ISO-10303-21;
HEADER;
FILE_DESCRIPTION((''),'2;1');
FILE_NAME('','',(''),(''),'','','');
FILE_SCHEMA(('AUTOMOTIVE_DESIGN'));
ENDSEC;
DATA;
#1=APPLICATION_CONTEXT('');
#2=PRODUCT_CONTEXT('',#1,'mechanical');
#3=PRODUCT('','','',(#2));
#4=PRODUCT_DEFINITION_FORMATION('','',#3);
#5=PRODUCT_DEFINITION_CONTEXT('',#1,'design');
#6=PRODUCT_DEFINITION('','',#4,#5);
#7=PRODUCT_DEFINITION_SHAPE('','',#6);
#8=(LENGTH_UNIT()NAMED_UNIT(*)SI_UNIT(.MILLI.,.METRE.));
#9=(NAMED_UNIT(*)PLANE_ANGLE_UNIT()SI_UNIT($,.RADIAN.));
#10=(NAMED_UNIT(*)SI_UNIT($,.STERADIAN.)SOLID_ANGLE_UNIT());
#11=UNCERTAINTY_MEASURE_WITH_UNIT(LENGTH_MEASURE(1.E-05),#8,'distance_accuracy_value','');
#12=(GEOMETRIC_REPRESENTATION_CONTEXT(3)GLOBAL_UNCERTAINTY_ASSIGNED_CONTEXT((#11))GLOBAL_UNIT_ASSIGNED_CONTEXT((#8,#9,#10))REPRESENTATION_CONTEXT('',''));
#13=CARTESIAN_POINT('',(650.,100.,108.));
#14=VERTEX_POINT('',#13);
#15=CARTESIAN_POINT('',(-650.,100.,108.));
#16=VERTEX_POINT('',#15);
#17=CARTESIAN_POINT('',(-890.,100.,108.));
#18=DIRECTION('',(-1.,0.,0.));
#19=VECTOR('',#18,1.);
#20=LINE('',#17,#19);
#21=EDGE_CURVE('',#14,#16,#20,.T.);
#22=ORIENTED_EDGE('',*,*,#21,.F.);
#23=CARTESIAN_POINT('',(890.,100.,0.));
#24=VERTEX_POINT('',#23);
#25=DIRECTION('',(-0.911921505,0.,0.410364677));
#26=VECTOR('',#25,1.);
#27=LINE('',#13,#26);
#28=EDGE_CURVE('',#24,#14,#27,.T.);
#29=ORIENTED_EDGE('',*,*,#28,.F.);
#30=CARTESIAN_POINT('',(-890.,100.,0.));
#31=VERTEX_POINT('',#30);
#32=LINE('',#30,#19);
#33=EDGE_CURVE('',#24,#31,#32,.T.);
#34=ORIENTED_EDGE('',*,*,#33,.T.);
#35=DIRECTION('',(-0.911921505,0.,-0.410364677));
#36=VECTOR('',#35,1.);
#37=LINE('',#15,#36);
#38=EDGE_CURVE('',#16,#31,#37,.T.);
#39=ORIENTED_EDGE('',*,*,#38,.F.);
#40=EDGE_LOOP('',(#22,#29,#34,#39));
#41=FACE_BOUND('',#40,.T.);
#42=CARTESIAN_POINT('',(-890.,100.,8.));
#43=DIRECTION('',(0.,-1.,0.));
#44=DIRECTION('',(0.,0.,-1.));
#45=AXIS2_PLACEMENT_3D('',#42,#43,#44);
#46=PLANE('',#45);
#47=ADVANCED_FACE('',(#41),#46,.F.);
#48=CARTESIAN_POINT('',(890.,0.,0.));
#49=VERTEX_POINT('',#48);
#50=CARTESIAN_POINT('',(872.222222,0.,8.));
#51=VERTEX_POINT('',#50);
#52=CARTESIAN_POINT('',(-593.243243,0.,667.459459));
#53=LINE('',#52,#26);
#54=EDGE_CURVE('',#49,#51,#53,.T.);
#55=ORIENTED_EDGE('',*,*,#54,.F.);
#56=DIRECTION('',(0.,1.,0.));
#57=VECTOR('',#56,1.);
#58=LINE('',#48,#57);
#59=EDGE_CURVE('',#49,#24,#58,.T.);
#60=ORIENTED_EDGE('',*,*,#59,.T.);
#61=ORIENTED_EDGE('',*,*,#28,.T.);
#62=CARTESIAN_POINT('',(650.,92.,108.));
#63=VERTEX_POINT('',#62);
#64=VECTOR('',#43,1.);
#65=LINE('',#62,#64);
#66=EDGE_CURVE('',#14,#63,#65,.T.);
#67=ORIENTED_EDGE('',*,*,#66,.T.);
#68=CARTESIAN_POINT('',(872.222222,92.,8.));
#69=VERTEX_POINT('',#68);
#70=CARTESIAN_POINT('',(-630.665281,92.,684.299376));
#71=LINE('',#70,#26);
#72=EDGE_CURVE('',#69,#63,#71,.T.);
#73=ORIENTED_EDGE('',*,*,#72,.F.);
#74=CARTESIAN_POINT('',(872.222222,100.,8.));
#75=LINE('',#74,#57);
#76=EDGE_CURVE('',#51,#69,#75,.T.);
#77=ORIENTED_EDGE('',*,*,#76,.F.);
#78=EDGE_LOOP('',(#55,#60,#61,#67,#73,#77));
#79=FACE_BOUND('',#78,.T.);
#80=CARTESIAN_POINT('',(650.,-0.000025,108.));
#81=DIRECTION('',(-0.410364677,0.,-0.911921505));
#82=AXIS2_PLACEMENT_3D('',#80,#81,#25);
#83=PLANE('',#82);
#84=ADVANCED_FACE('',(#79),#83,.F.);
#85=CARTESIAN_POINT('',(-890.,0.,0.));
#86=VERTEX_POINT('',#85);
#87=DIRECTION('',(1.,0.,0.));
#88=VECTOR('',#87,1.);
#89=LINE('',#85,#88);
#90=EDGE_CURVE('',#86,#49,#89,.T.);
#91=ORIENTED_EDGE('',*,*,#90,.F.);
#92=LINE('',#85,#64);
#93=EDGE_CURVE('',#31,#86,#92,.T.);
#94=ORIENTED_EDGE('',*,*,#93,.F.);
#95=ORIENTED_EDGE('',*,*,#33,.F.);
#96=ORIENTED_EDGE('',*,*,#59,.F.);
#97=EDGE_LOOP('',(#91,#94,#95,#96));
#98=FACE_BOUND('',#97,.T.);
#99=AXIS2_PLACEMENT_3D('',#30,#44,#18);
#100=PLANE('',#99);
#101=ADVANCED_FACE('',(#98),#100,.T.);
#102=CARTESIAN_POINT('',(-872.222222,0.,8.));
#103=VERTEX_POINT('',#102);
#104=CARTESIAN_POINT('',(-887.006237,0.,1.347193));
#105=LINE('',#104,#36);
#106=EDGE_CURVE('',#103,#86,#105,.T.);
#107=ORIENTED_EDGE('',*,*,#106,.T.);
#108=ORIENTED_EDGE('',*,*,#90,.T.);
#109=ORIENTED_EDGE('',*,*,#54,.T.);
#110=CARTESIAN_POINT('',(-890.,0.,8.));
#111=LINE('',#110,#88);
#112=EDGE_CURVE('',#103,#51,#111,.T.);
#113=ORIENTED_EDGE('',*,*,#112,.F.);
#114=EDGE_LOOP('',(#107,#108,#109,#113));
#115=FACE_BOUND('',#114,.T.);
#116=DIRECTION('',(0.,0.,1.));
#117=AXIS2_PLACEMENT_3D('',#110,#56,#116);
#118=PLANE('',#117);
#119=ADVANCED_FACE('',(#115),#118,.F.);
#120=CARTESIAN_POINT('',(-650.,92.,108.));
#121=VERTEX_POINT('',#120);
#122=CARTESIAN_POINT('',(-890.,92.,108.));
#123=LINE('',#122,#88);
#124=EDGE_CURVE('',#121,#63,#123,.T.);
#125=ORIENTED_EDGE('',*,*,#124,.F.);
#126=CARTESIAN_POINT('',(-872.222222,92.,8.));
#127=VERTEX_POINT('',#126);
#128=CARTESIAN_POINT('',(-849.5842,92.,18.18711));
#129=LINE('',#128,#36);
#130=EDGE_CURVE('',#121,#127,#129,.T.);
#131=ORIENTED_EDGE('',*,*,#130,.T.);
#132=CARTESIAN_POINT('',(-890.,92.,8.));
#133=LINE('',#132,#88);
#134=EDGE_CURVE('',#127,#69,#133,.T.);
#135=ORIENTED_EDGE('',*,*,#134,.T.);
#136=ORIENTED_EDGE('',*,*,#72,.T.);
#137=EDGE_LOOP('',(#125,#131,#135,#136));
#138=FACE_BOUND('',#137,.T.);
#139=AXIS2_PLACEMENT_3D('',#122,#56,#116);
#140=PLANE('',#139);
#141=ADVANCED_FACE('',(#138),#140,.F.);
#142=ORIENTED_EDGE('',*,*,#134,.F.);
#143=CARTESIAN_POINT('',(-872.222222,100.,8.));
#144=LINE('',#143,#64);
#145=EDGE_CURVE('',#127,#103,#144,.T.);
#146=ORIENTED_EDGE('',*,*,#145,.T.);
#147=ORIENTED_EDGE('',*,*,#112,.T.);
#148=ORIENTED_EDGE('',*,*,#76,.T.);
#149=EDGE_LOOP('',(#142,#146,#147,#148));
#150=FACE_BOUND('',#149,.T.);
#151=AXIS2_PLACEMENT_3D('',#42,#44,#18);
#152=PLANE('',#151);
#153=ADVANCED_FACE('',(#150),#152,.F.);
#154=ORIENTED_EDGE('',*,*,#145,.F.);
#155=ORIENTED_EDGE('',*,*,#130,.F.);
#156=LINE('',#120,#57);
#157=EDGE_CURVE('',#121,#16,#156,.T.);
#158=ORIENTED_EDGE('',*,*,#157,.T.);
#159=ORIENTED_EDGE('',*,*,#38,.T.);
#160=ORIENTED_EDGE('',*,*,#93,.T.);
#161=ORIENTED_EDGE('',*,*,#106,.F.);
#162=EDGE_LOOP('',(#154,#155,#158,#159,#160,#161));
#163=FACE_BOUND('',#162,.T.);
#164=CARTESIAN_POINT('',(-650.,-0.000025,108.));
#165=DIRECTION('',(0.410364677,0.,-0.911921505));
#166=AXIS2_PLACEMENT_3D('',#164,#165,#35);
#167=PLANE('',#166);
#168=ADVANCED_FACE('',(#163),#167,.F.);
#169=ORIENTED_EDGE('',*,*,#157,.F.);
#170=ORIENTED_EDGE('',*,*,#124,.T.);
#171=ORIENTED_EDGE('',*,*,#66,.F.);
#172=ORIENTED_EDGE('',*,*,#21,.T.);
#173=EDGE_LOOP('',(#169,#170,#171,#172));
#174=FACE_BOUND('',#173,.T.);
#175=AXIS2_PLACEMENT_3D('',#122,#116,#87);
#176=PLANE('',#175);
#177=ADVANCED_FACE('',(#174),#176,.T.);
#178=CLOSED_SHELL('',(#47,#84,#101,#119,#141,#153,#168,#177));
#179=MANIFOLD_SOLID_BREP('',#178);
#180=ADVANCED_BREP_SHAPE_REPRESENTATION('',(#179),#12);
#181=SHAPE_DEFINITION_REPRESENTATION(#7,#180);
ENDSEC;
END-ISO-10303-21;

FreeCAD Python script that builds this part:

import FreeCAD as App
import Part
import Sketcher
from FreeCAD import Vector
Q = App.Units.Quantity


def add_polygon(sketch, points):
    """Adds a closed chain of lines whose ends are joined by coincident constraints."""
    first, n = sketch.GeometryCount, len(points)
    for a, b in zip(points, points[1:] + points[:1]):
        sketch.addGeometry(Part.LineSegment(App.Vector(*a, 0), App.Vector(*b, 0)), False)
    for i in range(n):
        sketch.addConstraint(Sketcher.Constraint("Coincident", first + i, 2, first + (i + 1) % n, 1))

doc = App.newDocument("Part")
body = doc.addObject("PartDesign::Body", "Body")

# Sketch on XY plane
sketch1 = body.newObject("Sketcher::SketchObject", "Sketch")
sketch1.AttachmentSupport = (doc.getObject("XY_Plane"), [""])
sketch1.MapMode = "FlatFace"
add_polygon(sketch1, [(-890, 100), (-890, 0), (890, 0), (890, 100)])  # lines 0-3
sketch1.addConstraint([
    Sketcher.Constraint("Vertical", 0),
    Sketcher.Constraint("Horizontal", 1),
    Sketcher.Constraint("Vertical", 2),
    Sketcher.Constraint("Horizontal", 3),
    Sketcher.Constraint("Symmetric", 0, 2, 1, 2, -1, 1),
    Sketcher.Constraint("DistanceX", 1, 1, 1, 2, Q("1780 mm")),
    Sketcher.Constraint("DistanceY", 0, 2, 0, 1, Q("100 mm")),
])
pad1 = body.newObject("PartDesign::Pad", "Pad")
pad1.Profile = sketch1
pad1.Length = 8

# Sketch on XY plane
sketch2 = body.newObject("Sketcher::SketchObject", "Sketch001")
sketch2.AttachmentSupport = (doc.getObject("XY_Plane"), [""])
sketch2.MapMode = "FlatFace"
sketch2.AttachmentOffset = App.Placement(Vector(0, 0, 8), App.Rotation())
add_polygon(sketch2, [(-890, 100), (-890, 92), (890, 92), (890, 100)])  # lines 0-3
sketch2.addConstraint([
    Sketcher.Constraint("Vertical", 0),
    Sketcher.Constraint("Horizontal", 1),
    Sketcher.Constraint("Vertical", 2),
    Sketcher.Constraint("Horizontal", 3),
    Sketcher.Constraint("DistanceX", 1, 1, 1, 2, Q("1780 mm")),
    Sketcher.Constraint("DistanceY", 0, 2, 0, 1, Q("8 mm")),
    Sketcher.Constraint("DistanceX", 0, 2, -1, 1, Q("890 mm")),
    Sketcher.Constraint("DistanceY", -1, 1, 0, 2, Q("92 mm")),
])
pad2 = body.newObject("PartDesign::Pad", "Pad001")
pad2.Profile = sketch2
pad2.Length = 100

# Sketch on XZ plane
sketch3 = body.newObject("Sketcher::SketchObject", "Sketch002")
sketch3.AttachmentSupport = (doc.getObject("XZ_Plane"), [""])
sketch3.MapMode = "FlatFace"
sketch3.AttachmentOffset = App.Placement(Vector(0, 0, -100), App.Rotation())
add_polygon(sketch3, [(890, 0), (650, 108), (890, 108)])  # lines 0-2
add_polygon(sketch3, [(-890, 108), (-650, 108), (-890, 0)])  # lines 3-5
sketch3.addConstraint([
    Sketcher.Constraint("Horizontal", 1),
    Sketcher.Constraint("Vertical", 2),
    Sketcher.Constraint("Horizontal", 3),
    Sketcher.Constraint("Vertical", 5),
    Sketcher.Constraint("Symmetric", 2, 2, 4, 2, -1, 1),
    Sketcher.Constraint("Symmetric", 0, 2, 3, 2, -2),
    Sketcher.Constraint("PointOnObject", 2, 2, -1),
    Sketcher.Constraint("DistanceX", 1, 1, 1, 2, Q("240 mm")),
    Sketcher.Constraint("DistanceY", 2, 2, 2, 1, Q("108 mm")),
    Sketcher.Constraint("DistanceX", -1, 1, 0, 2, Q("650 mm")),
])
pocket1 = body.newObject("PartDesign::Pocket", "Pocket")
pocket1.Profile = sketch3
pocket1.Type = "ThroughAll"
pocket1.Reversed = True

doc.recompute()
